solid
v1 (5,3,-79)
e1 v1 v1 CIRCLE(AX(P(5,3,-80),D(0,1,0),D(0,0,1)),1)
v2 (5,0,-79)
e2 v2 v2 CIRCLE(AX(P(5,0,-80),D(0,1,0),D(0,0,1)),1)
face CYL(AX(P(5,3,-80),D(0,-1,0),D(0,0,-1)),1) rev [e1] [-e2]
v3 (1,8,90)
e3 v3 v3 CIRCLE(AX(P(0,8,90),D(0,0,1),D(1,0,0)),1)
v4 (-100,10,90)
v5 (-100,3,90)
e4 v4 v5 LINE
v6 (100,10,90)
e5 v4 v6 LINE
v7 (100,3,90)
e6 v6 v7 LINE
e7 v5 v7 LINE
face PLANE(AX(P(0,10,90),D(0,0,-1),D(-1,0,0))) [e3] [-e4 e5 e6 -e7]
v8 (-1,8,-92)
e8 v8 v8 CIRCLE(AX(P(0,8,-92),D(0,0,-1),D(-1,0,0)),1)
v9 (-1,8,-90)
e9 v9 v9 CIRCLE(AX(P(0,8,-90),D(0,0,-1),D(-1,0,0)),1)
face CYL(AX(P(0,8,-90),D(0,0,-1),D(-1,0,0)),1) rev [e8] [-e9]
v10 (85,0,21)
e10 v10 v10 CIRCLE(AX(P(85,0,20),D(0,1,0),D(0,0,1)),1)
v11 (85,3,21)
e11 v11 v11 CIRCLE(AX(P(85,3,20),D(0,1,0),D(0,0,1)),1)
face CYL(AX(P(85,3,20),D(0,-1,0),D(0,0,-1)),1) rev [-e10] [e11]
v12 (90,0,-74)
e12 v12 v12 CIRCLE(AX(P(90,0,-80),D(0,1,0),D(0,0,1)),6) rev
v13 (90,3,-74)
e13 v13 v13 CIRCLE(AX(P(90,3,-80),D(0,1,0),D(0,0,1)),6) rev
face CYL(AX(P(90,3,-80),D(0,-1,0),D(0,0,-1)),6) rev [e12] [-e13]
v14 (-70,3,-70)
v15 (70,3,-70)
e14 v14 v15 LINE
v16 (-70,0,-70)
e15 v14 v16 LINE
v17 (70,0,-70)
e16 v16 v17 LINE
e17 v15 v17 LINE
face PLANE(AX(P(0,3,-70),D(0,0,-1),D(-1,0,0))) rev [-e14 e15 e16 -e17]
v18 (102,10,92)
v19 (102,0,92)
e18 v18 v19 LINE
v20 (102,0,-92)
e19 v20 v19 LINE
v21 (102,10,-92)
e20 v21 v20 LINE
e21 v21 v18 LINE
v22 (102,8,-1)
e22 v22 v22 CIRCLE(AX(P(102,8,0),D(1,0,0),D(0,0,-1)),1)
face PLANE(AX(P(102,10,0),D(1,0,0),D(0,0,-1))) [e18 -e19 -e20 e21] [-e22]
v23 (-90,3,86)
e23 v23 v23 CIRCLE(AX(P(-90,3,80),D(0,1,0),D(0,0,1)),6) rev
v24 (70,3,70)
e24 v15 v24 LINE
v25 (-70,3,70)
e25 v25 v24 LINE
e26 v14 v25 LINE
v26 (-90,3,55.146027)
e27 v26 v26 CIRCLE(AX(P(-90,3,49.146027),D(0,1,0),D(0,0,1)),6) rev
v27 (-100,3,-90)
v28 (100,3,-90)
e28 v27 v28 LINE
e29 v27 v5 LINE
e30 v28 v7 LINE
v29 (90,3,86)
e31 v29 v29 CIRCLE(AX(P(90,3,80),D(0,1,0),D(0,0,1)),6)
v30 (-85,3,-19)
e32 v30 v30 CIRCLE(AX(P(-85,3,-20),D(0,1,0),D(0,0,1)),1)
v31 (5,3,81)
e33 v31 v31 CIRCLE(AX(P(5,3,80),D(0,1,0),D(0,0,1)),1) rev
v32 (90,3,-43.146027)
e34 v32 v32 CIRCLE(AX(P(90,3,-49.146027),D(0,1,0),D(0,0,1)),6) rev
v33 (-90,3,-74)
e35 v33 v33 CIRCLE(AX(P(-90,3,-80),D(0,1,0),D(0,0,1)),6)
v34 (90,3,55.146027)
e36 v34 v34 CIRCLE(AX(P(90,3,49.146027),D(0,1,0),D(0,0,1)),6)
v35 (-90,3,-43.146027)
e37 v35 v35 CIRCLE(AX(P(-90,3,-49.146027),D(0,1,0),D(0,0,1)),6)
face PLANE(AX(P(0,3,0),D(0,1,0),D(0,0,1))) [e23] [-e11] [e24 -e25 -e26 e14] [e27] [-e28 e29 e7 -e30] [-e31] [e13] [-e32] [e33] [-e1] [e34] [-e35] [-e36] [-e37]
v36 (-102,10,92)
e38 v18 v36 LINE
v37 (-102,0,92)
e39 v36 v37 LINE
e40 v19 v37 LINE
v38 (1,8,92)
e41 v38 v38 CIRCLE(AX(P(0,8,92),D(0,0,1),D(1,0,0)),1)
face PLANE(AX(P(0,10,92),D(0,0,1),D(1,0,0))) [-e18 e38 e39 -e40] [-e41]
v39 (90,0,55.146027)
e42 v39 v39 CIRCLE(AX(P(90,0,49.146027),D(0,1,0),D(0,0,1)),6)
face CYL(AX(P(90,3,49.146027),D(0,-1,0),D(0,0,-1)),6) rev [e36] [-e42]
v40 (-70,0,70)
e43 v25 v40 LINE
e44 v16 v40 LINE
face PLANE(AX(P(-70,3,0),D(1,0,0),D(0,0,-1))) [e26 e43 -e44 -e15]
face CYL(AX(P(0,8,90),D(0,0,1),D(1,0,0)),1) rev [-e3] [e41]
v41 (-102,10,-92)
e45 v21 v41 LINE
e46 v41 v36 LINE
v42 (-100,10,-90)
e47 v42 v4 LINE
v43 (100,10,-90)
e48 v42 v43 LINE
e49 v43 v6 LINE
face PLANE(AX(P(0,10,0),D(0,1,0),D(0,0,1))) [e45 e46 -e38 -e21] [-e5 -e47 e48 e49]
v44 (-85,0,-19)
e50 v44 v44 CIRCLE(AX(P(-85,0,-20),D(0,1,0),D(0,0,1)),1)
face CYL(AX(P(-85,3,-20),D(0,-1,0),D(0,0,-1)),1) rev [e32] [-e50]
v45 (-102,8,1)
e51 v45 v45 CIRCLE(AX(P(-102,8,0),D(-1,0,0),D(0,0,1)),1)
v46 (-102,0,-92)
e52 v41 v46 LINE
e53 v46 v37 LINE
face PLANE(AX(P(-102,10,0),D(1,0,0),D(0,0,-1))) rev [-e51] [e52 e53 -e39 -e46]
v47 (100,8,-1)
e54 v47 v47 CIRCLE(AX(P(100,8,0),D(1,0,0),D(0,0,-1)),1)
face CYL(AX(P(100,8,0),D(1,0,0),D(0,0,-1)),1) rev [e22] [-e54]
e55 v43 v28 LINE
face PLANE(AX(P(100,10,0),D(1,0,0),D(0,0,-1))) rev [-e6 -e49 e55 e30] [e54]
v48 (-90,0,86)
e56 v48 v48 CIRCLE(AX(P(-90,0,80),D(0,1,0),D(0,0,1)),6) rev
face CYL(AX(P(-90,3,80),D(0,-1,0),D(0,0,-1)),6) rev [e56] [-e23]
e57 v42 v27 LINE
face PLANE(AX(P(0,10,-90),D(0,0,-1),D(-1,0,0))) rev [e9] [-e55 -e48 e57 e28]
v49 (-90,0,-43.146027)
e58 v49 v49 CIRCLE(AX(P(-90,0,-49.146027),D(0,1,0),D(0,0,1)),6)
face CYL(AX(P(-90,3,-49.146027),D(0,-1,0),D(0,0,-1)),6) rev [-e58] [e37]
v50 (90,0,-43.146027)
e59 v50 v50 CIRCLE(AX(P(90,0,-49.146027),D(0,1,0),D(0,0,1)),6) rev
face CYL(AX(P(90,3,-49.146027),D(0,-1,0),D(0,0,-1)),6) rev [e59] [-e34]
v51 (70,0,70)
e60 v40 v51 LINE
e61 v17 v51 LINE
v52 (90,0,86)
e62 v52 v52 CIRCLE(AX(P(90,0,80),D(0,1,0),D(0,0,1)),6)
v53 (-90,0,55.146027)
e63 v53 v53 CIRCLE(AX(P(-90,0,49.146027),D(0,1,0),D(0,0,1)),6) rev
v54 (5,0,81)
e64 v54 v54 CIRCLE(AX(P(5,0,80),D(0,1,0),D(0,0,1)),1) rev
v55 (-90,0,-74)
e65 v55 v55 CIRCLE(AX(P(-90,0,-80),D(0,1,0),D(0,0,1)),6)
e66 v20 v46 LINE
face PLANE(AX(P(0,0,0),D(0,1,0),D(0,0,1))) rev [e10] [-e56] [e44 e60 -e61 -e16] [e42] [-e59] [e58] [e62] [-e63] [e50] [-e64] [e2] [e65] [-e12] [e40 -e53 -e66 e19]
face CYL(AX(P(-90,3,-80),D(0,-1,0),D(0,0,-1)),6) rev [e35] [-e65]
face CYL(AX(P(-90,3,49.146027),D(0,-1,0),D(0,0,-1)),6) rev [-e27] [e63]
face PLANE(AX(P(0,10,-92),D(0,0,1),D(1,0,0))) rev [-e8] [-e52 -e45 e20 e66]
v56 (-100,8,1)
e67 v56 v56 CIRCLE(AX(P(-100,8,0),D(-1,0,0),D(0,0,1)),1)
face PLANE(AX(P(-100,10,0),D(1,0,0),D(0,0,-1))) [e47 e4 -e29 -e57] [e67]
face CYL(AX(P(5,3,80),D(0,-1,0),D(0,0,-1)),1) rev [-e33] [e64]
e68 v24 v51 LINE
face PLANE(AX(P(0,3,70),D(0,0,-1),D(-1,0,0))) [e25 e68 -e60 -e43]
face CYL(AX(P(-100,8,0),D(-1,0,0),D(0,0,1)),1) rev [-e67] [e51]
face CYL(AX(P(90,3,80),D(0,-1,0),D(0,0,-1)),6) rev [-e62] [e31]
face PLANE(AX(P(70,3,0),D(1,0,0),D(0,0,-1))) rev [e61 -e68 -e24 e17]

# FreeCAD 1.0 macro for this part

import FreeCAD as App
import Part
import Sketcher

V = App.Vector
Q = App.Units.Quantity


def add_polygon(sketch, points):
    """Adds a closed chain of lines whose ends are joined by coincident constraints."""
    first, n = sketch.GeometryCount, len(points)
    for a, b in zip(points, points[1:] + points[:1]):
        sketch.addGeometry(Part.LineSegment(App.Vector(*a, 0), App.Vector(*b, 0)), False)
    for i in range(n):
        sketch.addConstraint(Sketcher.Constraint("Coincident", first + i, 2, first + (i + 1) % n, 1))

doc = App.newDocument("Part")
body = doc.addObject("PartDesign::Body", "Body")

# Sketch on XZ plane
sketch1 = body.newObject("Sketcher::SketchObject", "Sketch")
sketch1.AttachmentSupport = (doc.getObject("XZ_Plane"), [""])
sketch1.MapMode = "FlatFace"
add_polygon(sketch1, [(-100, -90), (-100, 90), (100, 90), (100, -90)])  # lines 0-3
sketch1.addGeometry(Part.Circle(V(-90, 80, 0), V(0, 0, 1), 6), False)  # 4
sketch1.addGeometry(Part.Circle(V(-90, 49.1, 0), V(0, 0, 1), 6), False)  # 5
sketch1.addGeometry(Part.Circle(V(5, 80, 0), V(0, 0, 1), 1), False)  # 6
sketch1.addGeometry(Part.Circle(V(90, 80, 0), V(0, 0, 1), 6), False)  # 7
sketch1.addGeometry(Part.Circle(V(90, 49.1, 0), V(0, 0, 1), 6), False)  # 8
sketch1.addGeometry(Part.Circle(V(85, 20, 0), V(0, 0, 1), 1), False)  # 9
sketch1.addGeometry(Part.Circle(V(-85, -20, 0), V(0, 0, 1), 1), False)  # 10
sketch1.addGeometry(Part.Circle(V(-90, -49.1, 0), V(0, 0, 1), 6), False)  # 11
sketch1.addGeometry(Part.Circle(V(-90, -80, 0), V(0, 0, 1), 6), False)  # 12
add_polygon(sketch1, [(70, 70), (-70, 70), (-70, -70), (70, -70)])  # lines 13-16
sketch1.addGeometry(Part.Circle(V(5, -80, 0), V(0, 0, 1), 1), False)  # 17
sketch1.addGeometry(Part.Circle(V(90, -49.1, 0), V(0, 0, 1), 6), False)  # 18
sketch1.addGeometry(Part.Circle(V(90, -80, 0), V(0, 0, 1), 6), False)  # 19
sketch1.addConstraint([
    Sketcher.Constraint("Vertical", 0),
    Sketcher.Constraint("Horizontal", 1),
    Sketcher.Constraint("Vertical", 2),
    Sketcher.Constraint("Horizontal", 3),
    Sketcher.Constraint("Horizontal", 13),
    Sketcher.Constraint("Vertical", 14),
    Sketcher.Constraint("Horizontal", 15),
    Sketcher.Constraint("Vertical", 16),
    Sketcher.Constraint("Equal", 4, 5),
    Sketcher.Constraint("Equal", 5, 7),
    Sketcher.Constraint("Equal", 7, 8),
    Sketcher.Constraint("Equal", 6, 9),
    Sketcher.Constraint("Equal", 9, 10),
    Sketcher.Constraint("Equal", 8, 11),
    Sketcher.Constraint("Equal", 11, 12),
    Sketcher.Constraint("Equal", 10, 17),
    Sketcher.Constraint("Equal", 12, 18),
    Sketcher.Constraint("Equal", 18, 19),
    Sketcher.Constraint("Symmetric", 9, 3, 10, 3, -1, 1),
    Sketcher.Constraint("Symmetric", 8, 3, 11, 3, -1, 1),
    Sketcher.Constraint("Symmetric", 7, 3, 12, 3, -1, 1),
    Sketcher.Constraint("Symmetric", 5, 3, 18, 3, -1, 1),
    Sketcher.Constraint("Symmetric", 4, 3, 19, 3, -1, 1),
    Sketcher.Constraint("Symmetric", 0, 2, 2, 2, -1, 1),
    Sketcher.Constraint("Symmetric", 13, 2, 15, 2, -1, 1),
    Sketcher.Constraint("Symmetric", 4, 3, 7, 3, -2),
    Sketcher.Constraint("Symmetric", 5, 3, 8, 3, -2),
    Sketcher.Constraint("Symmetric", 6, 3, 17, 3, -1),
    Sketcher.Constraint("Horizontal", 4, 3, 6, 3),
    Sketcher.Constraint("Vertical", 4, 3, 5, 3),
    Sketcher.Constraint("Equal", 15, 14),
    Sketcher.Constraint("Diameter", 4, Q("12 mm")),
    Sketcher.Constraint("Diameter", 6, Q("2 mm")),
    Sketcher.Constraint("DistanceX", 1, 1, 1, 2, Q("200 mm")),
    Sketcher.Constraint("DistanceX", 13, 2, 13, 1, Q("140 mm")),
    Sketcher.Constraint("DistanceY", 0, 1, 0, 2, Q("180 mm")),
    Sketcher.Constraint("DistanceX", 4, 3, -1, 1, Q("90 mm")),
    Sketcher.Constraint("DistanceY", -1, 1, 4, 3, Q("80 mm")),
    Sketcher.Constraint("DistanceX", -1, 1, 6, 3, Q("5 mm")),
    Sketcher.Constraint("DistanceX", -1, 1, 9, 3, Q("85 mm")),
    Sketcher.Constraint("DistanceY", -1, 1, 9, 3, Q("20 mm")),
    Sketcher.Constraint("DistanceY", -1, 1, 5, 3, Q("49.146027 mm")),
])
pad1 = body.newObject("PartDesign::Pad", "Pad")
pad1.Profile = sketch1
pad1.Length = 3
pad1.Reversed = True

# Sketch on XZ plane
sketch2 = body.newObject("Sketcher::SketchObject", "Sketch001")
sketch2.AttachmentSupport = (doc.getObject("XZ_Plane"), [""])
sketch2.MapMode = "FlatFace"
add_polygon(sketch2, [(-102, -92), (-102, 92), (102, 92), (102, -92)])  # lines 0-3
add_polygon(sketch2, [(100, 90), (-100, 90), (-100, -90), (100, -90)])  # lines 4-7
sketch2.addConstraint([
    Sketcher.Constraint("Vertical", 0),
    Sketcher.Constraint("Horizontal", 1),
    Sketcher.Constraint("Vertical", 2),
    Sketcher.Constraint("Horizontal", 3),
    Sketcher.Constraint("Horizontal", 4),
    Sketcher.Constraint("Vertical", 5),
    Sketcher.Constraint("Horizontal", 6),
    Sketcher.Constraint("Vertical", 7),
    Sketcher.Constraint("Symmetric", 0, 2, 2, 2, -1, 1),
    Sketcher.Constraint("Symmetric", 4, 2, 6, 2, -1, 1),
    Sketcher.Constraint("DistanceX", 1, 1, 1, 2, Q("204 mm")),
    Sketcher.Constraint("DistanceX", 4, 2, 4, 1, Q("200 mm")),
    Sketcher.Constraint("DistanceY", 0, 1, 0, 2, Q("184 mm")),
    Sketcher.Constraint("DistanceY", 5, 2, 5, 1, Q("180 mm")),
])
pad2 = body.newObject("PartDesign::Pad", "Pad001")
pad2.Profile = sketch2
pad2.Length = 10
pad2.Reversed = True

# Sketch on YZ plane
sketch3 = body.newObject("Sketcher::SketchObject", "Sketch002")
sketch3.AttachmentSupport = (doc.getObject("YZ_Plane"), [""])
sketch3.MapMode = "FlatFace"
sketch3.AttachmentOffset = App.Placement(V(0, 0, -102), App.Rotation())
sketch3.addGeometry(Part.Circle(V(8, 0, 0), V(0, 0, 1), 1), False)
sketch3.addConstraint([
    Sketcher.Constraint("PointOnObject", 0, 3, -1),
    Sketcher.Constraint("Diameter", 0, Q("2 mm")),
    Sketcher.Constraint("DistanceX", -1, 1, 0, 3, Q("8 mm")),
])
pocket1 = body.newObject("PartDesign::Pocket", "Pocket")
pocket1.Profile = sketch3
pocket1.Length = 2
pocket1.Reversed = True

# Sketch on XY plane
sketch4 = body.newObject("Sketcher::SketchObject", "Sketch003")
sketch4.AttachmentSupport = (doc.getObject("XY_Plane"), [""])
sketch4.MapMode = "FlatFace"
sketch4.AttachmentOffset = App.Placement(V(0, 0, -92), App.Rotation())
sketch4.addGeometry(Part.Circle(V(0, 8, 0), V(0, 0, 1), 1), False)
sketch4.addConstraint([
    Sketcher.Constraint("PointOnObject", 0, 3, -2),
    Sketcher.Constraint("Diameter", 0, Q("2 mm")),
    Sketcher.Constraint("DistanceY", -1, 1, 0, 3, Q("8 mm")),
])
pocket2 = body.newObject("PartDesign::Pocket", "Pocket001")
pocket2.Profile = sketch4
pocket2.Length = 2
pocket2.Reversed = True

# Sketch on YZ plane
sketch5 = body.newObject("Sketcher::SketchObject", "Sketch004")
sketch5.AttachmentSupport = (doc.getObject("YZ_Plane"), [""])
sketch5.MapMode = "FlatFace"
sketch5.AttachmentOffset = App.Placement(V(0, 0, 100), App.Rotation())
sketch5.addGeometry(Part.Circle(V(8, 0, 0), V(0, 0, 1), 1), False)
sketch5.addConstraint([
    Sketcher.Constraint("PointOnObject", 0, 3, -1),
    Sketcher.Constraint("Diameter", 0, Q("2 mm")),
    Sketcher.Constraint("DistanceX", -1, 1, 0, 3, Q("8 mm")),
])
pocket3 = body.newObject("PartDesign::Pocket", "Pocket002")
pocket3.Profile = sketch5
pocket3.Length = 2
pocket3.Reversed = True

# Sketch on XY plane
sketch6 = body.newObject("Sketcher::SketchObject", "Sketch005")
sketch6.AttachmentSupport = (doc.getObject("XY_Plane"), [""])
sketch6.MapMode = "FlatFace"
sketch6.AttachmentOffset = App.Placement(V(0, 0, 90), App.Rotation())
sketch6.addGeometry(Part.Circle(V(0, 8, 0), V(0, 0, 1), 1), False)
sketch6.addConstraint([
    Sketcher.Constraint("PointOnObject", 0, 3, -2),
    Sketcher.Constraint("Diameter", 0, Q("2 mm")),
    Sketcher.Constraint("DistanceY", -1, 1, 0, 3, Q("8 mm")),
])
pocket4 = body.newObject("PartDesign::Pocket", "Pocket003")
pocket4.Profile = sketch6
pocket4.Length = 2
pocket4.Reversed = True

doc.recompute()
